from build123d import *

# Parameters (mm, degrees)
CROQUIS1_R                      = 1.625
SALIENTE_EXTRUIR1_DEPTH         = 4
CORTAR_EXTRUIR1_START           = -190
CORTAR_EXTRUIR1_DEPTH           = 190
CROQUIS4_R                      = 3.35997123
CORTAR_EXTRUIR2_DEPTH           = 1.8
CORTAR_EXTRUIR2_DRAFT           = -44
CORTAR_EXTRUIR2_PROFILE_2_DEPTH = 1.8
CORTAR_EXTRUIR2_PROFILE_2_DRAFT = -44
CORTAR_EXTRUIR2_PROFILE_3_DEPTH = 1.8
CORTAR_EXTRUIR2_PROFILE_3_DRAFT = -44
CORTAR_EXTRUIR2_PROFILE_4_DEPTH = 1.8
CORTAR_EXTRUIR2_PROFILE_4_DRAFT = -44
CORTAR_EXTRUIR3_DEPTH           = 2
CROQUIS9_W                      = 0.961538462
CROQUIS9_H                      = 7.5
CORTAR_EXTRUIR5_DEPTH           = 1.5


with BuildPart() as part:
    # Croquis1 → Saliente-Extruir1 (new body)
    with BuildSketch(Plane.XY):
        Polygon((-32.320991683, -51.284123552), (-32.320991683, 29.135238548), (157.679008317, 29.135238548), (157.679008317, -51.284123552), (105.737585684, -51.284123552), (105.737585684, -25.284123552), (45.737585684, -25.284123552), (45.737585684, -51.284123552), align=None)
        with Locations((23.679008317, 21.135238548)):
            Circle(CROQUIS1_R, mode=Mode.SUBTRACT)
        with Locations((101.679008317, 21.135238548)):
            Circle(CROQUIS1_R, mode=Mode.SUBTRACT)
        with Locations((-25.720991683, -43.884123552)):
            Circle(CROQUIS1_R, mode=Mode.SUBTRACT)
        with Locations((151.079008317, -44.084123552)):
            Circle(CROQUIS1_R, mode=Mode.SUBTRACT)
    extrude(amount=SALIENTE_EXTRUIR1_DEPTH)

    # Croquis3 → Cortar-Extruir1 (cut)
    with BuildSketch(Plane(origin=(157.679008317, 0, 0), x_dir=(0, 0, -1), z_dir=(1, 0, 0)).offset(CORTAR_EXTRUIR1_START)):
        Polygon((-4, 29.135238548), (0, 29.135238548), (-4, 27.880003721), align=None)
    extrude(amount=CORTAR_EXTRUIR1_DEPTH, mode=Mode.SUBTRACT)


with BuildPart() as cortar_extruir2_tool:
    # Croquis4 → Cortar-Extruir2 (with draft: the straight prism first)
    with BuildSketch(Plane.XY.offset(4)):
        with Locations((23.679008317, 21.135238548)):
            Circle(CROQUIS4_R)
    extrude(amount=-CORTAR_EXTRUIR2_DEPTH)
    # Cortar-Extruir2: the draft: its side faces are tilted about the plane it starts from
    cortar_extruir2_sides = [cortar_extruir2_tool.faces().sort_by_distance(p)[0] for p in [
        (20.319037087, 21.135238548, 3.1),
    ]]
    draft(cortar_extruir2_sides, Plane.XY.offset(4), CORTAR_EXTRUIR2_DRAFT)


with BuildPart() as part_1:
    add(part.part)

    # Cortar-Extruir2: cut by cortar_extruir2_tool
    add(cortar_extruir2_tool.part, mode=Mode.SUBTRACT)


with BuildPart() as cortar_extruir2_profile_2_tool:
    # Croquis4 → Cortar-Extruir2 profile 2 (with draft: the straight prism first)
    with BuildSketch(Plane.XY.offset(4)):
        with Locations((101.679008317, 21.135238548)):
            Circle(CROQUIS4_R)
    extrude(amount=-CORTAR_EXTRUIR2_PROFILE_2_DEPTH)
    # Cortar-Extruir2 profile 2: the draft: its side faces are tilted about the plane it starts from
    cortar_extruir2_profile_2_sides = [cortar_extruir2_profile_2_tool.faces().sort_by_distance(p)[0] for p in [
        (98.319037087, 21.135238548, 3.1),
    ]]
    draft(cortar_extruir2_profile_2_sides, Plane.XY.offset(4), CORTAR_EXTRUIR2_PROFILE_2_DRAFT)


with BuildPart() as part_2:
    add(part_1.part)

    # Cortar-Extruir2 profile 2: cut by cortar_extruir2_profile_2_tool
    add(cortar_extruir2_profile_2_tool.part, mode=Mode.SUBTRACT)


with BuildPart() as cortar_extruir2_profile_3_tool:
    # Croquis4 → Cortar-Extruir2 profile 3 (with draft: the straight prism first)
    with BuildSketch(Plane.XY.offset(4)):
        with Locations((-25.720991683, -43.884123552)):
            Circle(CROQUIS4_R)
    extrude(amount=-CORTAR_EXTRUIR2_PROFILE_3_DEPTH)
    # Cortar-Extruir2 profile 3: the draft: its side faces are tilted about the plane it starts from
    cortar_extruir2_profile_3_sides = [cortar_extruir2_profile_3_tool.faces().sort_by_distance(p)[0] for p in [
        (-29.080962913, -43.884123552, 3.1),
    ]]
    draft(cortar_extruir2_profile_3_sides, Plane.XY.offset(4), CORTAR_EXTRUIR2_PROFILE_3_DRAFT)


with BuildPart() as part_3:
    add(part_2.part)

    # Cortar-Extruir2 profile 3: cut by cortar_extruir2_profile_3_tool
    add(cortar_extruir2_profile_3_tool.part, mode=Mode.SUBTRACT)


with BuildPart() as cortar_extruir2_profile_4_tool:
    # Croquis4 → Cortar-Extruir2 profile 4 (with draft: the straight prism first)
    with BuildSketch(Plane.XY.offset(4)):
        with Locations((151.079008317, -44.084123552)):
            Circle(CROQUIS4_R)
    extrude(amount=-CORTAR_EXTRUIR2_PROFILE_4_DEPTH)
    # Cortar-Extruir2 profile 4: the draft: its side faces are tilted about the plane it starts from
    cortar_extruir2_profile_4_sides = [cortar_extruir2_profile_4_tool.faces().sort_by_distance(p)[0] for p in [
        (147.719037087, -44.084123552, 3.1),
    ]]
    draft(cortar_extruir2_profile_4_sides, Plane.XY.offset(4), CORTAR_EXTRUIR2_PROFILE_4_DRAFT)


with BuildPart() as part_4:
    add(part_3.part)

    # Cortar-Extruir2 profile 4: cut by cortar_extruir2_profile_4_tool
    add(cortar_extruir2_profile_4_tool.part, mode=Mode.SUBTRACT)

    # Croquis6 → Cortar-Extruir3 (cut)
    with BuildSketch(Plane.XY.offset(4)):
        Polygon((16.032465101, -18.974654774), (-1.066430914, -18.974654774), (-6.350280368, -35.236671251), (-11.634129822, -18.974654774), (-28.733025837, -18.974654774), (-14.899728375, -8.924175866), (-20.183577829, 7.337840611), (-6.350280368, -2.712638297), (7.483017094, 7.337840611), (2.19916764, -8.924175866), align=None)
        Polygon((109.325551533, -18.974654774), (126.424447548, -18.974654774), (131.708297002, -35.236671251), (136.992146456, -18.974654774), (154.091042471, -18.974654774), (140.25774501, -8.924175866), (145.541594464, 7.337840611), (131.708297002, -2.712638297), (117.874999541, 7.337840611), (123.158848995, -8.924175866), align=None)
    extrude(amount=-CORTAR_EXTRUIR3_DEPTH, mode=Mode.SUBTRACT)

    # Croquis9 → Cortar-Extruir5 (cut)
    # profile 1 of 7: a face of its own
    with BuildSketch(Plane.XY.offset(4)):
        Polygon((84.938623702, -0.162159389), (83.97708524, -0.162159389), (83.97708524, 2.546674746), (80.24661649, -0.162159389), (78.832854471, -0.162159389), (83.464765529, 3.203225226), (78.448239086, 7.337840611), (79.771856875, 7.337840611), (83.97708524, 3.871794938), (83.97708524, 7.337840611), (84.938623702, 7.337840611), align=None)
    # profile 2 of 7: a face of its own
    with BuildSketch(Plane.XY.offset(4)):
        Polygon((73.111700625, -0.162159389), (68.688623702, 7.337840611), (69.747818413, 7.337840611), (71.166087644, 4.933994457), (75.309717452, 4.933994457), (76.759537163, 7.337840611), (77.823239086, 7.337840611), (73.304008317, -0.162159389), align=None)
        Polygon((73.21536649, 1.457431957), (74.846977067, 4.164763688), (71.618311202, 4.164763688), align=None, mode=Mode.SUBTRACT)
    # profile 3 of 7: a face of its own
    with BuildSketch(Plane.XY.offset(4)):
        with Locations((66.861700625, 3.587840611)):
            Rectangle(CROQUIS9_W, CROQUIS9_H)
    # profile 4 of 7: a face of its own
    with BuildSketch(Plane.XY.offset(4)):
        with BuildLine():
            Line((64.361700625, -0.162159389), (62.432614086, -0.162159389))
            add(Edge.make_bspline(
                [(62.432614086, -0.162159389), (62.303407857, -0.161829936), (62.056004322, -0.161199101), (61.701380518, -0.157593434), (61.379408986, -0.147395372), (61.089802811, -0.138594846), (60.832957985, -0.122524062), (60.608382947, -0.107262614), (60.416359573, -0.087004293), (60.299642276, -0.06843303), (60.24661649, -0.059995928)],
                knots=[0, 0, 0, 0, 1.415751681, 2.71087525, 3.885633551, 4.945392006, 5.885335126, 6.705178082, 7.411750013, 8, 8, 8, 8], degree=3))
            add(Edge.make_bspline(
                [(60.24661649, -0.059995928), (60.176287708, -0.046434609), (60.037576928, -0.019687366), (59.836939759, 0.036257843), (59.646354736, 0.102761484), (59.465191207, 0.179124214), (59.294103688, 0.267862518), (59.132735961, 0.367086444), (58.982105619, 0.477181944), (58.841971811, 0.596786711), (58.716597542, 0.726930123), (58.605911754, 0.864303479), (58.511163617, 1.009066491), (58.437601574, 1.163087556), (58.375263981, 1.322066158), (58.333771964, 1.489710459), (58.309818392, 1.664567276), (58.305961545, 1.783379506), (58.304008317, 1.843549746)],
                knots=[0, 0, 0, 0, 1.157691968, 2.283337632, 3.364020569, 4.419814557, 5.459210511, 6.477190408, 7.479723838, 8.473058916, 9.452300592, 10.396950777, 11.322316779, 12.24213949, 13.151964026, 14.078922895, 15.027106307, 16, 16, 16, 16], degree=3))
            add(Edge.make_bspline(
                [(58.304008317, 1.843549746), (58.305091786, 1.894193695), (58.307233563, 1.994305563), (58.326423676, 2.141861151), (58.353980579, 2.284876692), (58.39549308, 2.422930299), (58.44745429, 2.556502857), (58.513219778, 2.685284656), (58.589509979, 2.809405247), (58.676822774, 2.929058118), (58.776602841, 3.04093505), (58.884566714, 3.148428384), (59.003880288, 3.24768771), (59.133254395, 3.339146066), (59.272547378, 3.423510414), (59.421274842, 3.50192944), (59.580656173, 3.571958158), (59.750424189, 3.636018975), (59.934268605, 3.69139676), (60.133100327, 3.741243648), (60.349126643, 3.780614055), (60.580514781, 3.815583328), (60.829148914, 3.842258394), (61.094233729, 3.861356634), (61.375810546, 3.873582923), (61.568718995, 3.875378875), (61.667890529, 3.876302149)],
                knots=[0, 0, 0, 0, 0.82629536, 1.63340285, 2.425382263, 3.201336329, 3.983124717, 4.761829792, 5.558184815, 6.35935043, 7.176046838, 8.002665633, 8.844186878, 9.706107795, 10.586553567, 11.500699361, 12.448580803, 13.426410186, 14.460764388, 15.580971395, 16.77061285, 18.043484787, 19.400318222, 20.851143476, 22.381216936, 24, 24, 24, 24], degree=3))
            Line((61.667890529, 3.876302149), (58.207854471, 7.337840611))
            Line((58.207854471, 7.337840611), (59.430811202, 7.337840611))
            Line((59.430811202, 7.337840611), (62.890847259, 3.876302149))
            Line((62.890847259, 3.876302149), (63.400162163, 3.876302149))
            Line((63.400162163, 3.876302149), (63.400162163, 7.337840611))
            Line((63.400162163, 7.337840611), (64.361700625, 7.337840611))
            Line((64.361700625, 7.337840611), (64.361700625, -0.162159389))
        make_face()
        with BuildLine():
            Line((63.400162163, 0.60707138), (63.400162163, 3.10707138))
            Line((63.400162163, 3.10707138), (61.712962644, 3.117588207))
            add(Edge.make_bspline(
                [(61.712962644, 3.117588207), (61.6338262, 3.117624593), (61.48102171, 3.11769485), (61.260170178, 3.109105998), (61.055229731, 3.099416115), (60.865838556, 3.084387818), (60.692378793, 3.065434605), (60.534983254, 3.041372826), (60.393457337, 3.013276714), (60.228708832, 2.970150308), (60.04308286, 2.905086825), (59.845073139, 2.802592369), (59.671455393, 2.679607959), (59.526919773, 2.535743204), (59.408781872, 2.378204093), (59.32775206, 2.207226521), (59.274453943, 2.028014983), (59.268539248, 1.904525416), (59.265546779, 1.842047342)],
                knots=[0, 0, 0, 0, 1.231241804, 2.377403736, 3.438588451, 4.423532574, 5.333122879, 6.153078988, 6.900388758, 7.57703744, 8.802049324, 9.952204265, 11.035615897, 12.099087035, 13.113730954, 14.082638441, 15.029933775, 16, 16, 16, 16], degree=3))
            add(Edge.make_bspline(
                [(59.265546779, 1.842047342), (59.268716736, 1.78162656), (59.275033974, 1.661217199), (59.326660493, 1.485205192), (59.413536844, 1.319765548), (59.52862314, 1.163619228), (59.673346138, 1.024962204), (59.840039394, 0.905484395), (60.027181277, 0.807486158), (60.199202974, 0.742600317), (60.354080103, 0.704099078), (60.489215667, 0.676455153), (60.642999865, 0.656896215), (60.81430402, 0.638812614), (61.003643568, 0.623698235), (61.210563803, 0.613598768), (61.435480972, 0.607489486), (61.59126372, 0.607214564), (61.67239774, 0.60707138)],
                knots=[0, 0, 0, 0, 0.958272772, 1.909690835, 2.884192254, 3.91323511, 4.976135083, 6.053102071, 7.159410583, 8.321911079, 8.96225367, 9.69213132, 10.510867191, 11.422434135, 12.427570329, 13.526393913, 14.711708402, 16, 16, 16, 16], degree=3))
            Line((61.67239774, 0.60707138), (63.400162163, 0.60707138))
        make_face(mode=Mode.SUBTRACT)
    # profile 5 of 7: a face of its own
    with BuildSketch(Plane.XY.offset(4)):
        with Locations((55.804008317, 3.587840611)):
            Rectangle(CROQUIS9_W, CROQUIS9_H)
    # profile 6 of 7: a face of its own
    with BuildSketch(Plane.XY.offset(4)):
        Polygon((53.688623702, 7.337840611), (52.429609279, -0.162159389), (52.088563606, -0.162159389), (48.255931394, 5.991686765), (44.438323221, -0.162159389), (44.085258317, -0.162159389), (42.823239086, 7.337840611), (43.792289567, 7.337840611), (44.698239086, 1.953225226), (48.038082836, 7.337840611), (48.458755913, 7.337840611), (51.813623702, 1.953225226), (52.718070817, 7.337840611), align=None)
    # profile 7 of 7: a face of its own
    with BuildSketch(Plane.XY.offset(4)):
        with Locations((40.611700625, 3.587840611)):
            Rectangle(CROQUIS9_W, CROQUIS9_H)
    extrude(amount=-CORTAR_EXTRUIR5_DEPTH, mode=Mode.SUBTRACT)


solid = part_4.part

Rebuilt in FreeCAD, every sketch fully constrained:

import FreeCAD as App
import Part
import Sketcher

V = App.Vector
Q = App.Units.Quantity


def faces_at(feature, points):
    """Names of the faces that lie closest to the given points."""
    faces = feature.Shape.Faces
    near = lambda p: min(range(len(faces)), key=lambda i: faces[i].distToShape(Part.Vertex(*p))[0])
    return sorted({f"Face{near(p) + 1}" for p in points})


def add_polygon(sketch, points):
    """Adds a closed chain of lines whose ends are joined by coincident constraints."""
    first, n = sketch.GeometryCount, len(points)
    for a, b in zip(points, points[1:] + points[:1]):
        sketch.addGeometry(Part.LineSegment(App.Vector(*a, 0), App.Vector(*b, 0)), False)
    for i in range(n):
        sketch.addConstraint(Sketcher.Constraint("Coincident", first + i, 2, first + (i + 1) % n, 1))

doc = App.newDocument("Part")
body = doc.addObject("PartDesign::Body", "Body")

# Sketch on XY plane
sketch1 = body.newObject("Sketcher::SketchObject", "Sketch")
sketch1.AttachmentSupport = (doc.getObject("XY_Plane"), [""])
sketch1.MapMode = "FlatFace"
add_polygon(sketch1, [(-32.320992, 29.135239), (-32.320992, -51.284124), (45.737586, -51.284124), (45.737586, -25.284124), (105.737586, -25.284124), (105.737586, -51.284124), (157.679008, -51.284124), (157.679008, 29.135239)])  # lines 0-7
sketch1.addGeometry(Part.Circle(V(151.079008, -44.084124, 0), V(0, 0, 1), 1.625), False)  # 8
sketch1.addGeometry(Part.Circle(V(-25.720992, -43.884124, 0), V(0, 0, 1), 1.625), False)  # 9
sketch1.addGeometry(Part.Circle(V(101.679008, 21.135239, 0), V(0, 0, 1), 1.625), False)  # 10
sketch1.addGeometry(Part.Circle(V(23.679008, 21.135239, 0), V(0, 0, 1), 1.625), False)  # 11
sketch1.addConstraint(Sketcher.Constraint("Vertical", 0))
sketch1.addConstraint(Sketcher.Constraint("Horizontal", 1))
sketch1.addConstraint(Sketcher.Constraint("Vertical", 2))
sketch1.addConstraint(Sketcher.Constraint("Horizontal", 3))
sketch1.addConstraint(Sketcher.Constraint("Vertical", 4))
sketch1.addConstraint(Sketcher.Constraint("Horizontal", 5))
sketch1.addConstraint(Sketcher.Constraint("Vertical", 6))
sketch1.addConstraint(Sketcher.Constraint("Horizontal", 7))
sketch1.addConstraint(Sketcher.Constraint("Equal", 8, 9))
sketch1.addConstraint(Sketcher.Constraint("Equal", 9, 10))
sketch1.addConstraint(Sketcher.Constraint("Equal", 10, 11))
sketch1.addConstraint(Sketcher.Constraint("Horizontal", 10, 3, 11, 3))
sketch1.addConstraint(Sketcher.Constraint("Horizontal", 1, 2, 4, 2))
sketch1.addConstraint(Sketcher.Constraint("Diameter", 8, 3.25))
sketch1.addConstraint(Sketcher.Constraint("DistanceX", 3, 1, 3, 2, 60.0))
sketch1.addConstraint(Sketcher.Constraint("DistanceX", 7, 2, 7, 1, 190.0))
sketch1.addConstraint(Sketcher.Constraint("DistanceY", 2, 1, 2, 2, 26.0))
sketch1.addConstraint(Sketcher.Constraint("DistanceX", 11, 3, 10, 3, 78.0))
sketch1.addConstraint(Sketcher.Constraint("DistanceX", 0, 2, 11, 3, 56.0))
sketch1.addConstraint(Sketcher.Constraint("DistanceY", 10, 3, 6, 2, 8.0))
sketch1.addConstraint(Sketcher.Constraint("DistanceX", 9, 3, 8, 3, 176.8))
sketch1.addConstraint(Sketcher.Constraint("DistanceY", 8, 3, 9, 3, 0.2))
sketch1.addConstraint(Sketcher.Constraint("DistanceX", 10, 3, 8, 3, 49.4))
sketch1.addConstraint(Sketcher.Constraint("DistanceY", 0, 2, 9, 3, 7.4))
sketch1.addConstraint(Sketcher.Constraint("DistanceX", 1, 1, 1, 2, 78.058577))
sketch1.addConstraint(Sketcher.Constraint("DistanceY", 0, 2, 0, 1, 80.419362))
sketch1.addConstraint(Sketcher.Constraint("DistanceX", -1, 1, 8, 3, 151.079008))
sketch1.addConstraint(Sketcher.Constraint("DistanceY", -1, 1, 10, 3, 21.135239))
pad1 = body.newObject("PartDesign::Pad", "Pad")
pad1.Profile = sketch1
pad1.Length = 4

# Sketch on YZ plane
sketch2 = body.newObject("Sketcher::SketchObject", "Sketch001")
sketch2.AttachmentSupport = (doc.getObject("YZ_Plane"), [""])
sketch2.MapMode = "FlatFace"
sketch2.AttachmentOffset = App.Placement(V(0, 0, -32.320992), App.Rotation())
add_polygon(sketch2, [(29.135239, 0), (29.135239, 4), (27.880004, 4)])  # lines 0-2
sketch2.addConstraint(Sketcher.Constraint("Vertical", 0))
sketch2.addConstraint(Sketcher.Constraint("Horizontal", 1))
sketch2.addConstraint(Sketcher.Constraint("PointOnObject", 2, 2, -1))
sketch2.addConstraint(Sketcher.Constraint("DistanceY", 0, 1, 0, 2, 4.0))
sketch2.addConstraint(Sketcher.Constraint("Distance", 2, 4.192328))
sketch2.addConstraint(Sketcher.Constraint("DistanceX", -1, 1, 0, 2, 29.135239))
pocket1 = body.newObject("PartDesign::Pocket", "Pocket")
pocket1.Profile = sketch2
pocket1.Length = 190
pocket1.Reversed = True
body2 = doc.addObject("PartDesign::Body", "Body001")

# Sketch on XY plane
sketch3 = body2.newObject("Sketcher::SketchObject", "Sketch002")
sketch3.AttachmentSupport = (doc.getObject("XY_Plane001"), [""])
sketch3.MapMode = "FlatFace"
sketch3.AttachmentOffset = App.Placement(V(0, 0, 4), App.Rotation())
sketch3.addGeometry(Part.Circle(V(23.679008, 21.135239, 0), V(0, 0, 1), 3.359971), False)
sketch3.addConstraint(Sketcher.Constraint("Diameter", 0, 6.719942))
sketch3.addConstraint(Sketcher.Constraint("DistanceX", -1, 1, 0, 3, 23.679008))
sketch3.addConstraint(Sketcher.Constraint("DistanceY", -1, 1, 0, 3, 21.135239))
pad2 = body2.newObject("PartDesign::Pad", "Pad001")
pad2.Profile = sketch3
pad2.Length = 1.8
pad2.Reversed = True
doc.recompute()

datumplane = body2.newObject("PartDesign::Plane", "DatumPlane")
datumplane.AttachmentSupport = (doc.getObject("XY_Plane001"), [""])
datumplane.MapMode = "FlatFace"
datumplane.AttachmentOffset = App.Placement(V(0, 0, 4), App.Rotation())
draft = body2.newObject("PartDesign::Draft", "Draft")
draft.Base = (pad2, faces_at(pad2, [(20.319, 21.135, 3.1)]))
draft.NeutralPlane = (datumplane, [""])
draft.Angle = 44
draft.Reversed = True
doc.recompute()

boolean = body.newObject("PartDesign::Boolean", "Boolean")
boolean.Type = "Cut"
boolean.addObjects([body2])
body3 = doc.addObject("PartDesign::Body", "Body002")

# Sketch on XY plane
sketch4 = body3.newObject("Sketcher::SketchObject", "Sketch003")
sketch4.AttachmentSupport = (doc.getObject("XY_Plane002"), [""])
sketch4.MapMode = "FlatFace"
sketch4.AttachmentOffset = App.Placement(V(0, 0, 4), App.Rotation())
sketch4.addGeometry(Part.Circle(V(101.679008, 21.135239, 0), V(0, 0, 1), 3.359971), False)
sketch4.addConstraint(Sketcher.Constraint("Diameter", 0, 6.719942))
sketch4.addConstraint(Sketcher.Constraint("DistanceX", -1, 1, 0, 3, 101.679008))
sketch4.addConstraint(Sketcher.Constraint("DistanceY", -1, 1, 0, 3, 21.135239))
pad3 = body3.newObject("PartDesign::Pad", "Pad002")
pad3.Profile = sketch4
pad3.Length = 1.8
pad3.Reversed = True
doc.recompute()

datumplane2 = body3.newObject("PartDesign::Plane", "DatumPlane001")
datumplane2.AttachmentSupport = (doc.getObject("XY_Plane002"), [""])
datumplane2.MapMode = "FlatFace"
datumplane2.AttachmentOffset = App.Placement(V(0, 0, 4), App.Rotation())
draft2 = body3.newObject("PartDesign::Draft", "Draft001")
draft2.Base = (pad3, faces_at(pad3, [(98.319, 21.135, 3.1)]))
draft2.NeutralPlane = (datumplane2, [""])
draft2.Angle = 44
draft2.Reversed = True
doc.recompute()

boolean2 = body.newObject("PartDesign::Boolean", "Boolean001")
boolean2.Type = "Cut"
boolean2.addObjects([body3])
body4 = doc.addObject("PartDesign::Body", "Body003")

# Sketch on XY plane
sketch5 = body4.newObject("Sketcher::SketchObject", "Sketch004")
sketch5.AttachmentSupport = (doc.getObject("XY_Plane003"), [""])
sketch5.MapMode = "FlatFace"
sketch5.AttachmentOffset = App.Placement(V(0, 0, 4), App.Rotation())
sketch5.addGeometry(Part.Circle(V(-25.720992, -43.884124, 0), V(0, 0, 1), 3.359971), False)
sketch5.addConstraint(Sketcher.Constraint("Diameter", 0, 6.719942))
sketch5.addConstraint(Sketcher.Constraint("DistanceX", 0, 3, -1, 1, 25.720992))
sketch5.addConstraint(Sketcher.Constraint("DistanceY", 0, 3, -1, 1, 43.884124))
pad4 = body4.newObject("PartDesign::Pad", "Pad003")
pad4.Profile = sketch5
pad4.Length = 1.8
pad4.Reversed = True
doc.recompute()

datumplane3 = body4.newObject("PartDesign::Plane", "DatumPlane002")
datumplane3.AttachmentSupport = (doc.getObject("XY_Plane003"), [""])
datumplane3.MapMode = "FlatFace"
datumplane3.AttachmentOffset = App.Placement(V(0, 0, 4), App.Rotation())
draft3 = body4.newObject("PartDesign::Draft", "Draft002")
draft3.Base = (pad4, faces_at(pad4, [(-29.081, -43.884, 3.1)]))
draft3.NeutralPlane = (datumplane3, [""])
draft3.Angle = 44
draft3.Reversed = True
doc.recompute()

boolean3 = body.newObject("PartDesign::Boolean", "Boolean002")
boolean3.Type = "Cut"
boolean3.addObjects([body4])
body5 = doc.addObject("PartDesign::Body", "Body004")

# Sketch on XY plane
sketch6 = body5.newObject("Sketcher::SketchObject", "Sketch005")
sketch6.AttachmentSupport = (doc.getObject("XY_Plane004"), [""])
sketch6.MapMode = "FlatFace"
sketch6.AttachmentOffset = App.Placement(V(0, 0, 4), App.Rotation())
sketch6.addGeometry(Part.Circle(V(151.079008, -44.084124, 0), V(0, 0, 1), 3.359971), False)
sketch6.addConstraint(Sketcher.Constraint("Diameter", 0, 6.719942))
sketch6.addConstraint(Sketcher.Constraint("DistanceX", -1, 1, 0, 3, 151.079008))
sketch6.addConstraint(Sketcher.Constraint("DistanceY", 0, 3, -1, 1, 44.084124))
pad5 = body5.newObject("PartDesign::Pad", "Pad004")
pad5.Profile = sketch6
pad5.Length = 1.8
pad5.Reversed = True
doc.recompute()

datumplane4 = body5.newObject("PartDesign::Plane", "DatumPlane003")
datumplane4.AttachmentSupport = (doc.getObject("XY_Plane004"), [""])
datumplane4.MapMode = "FlatFace"
datumplane4.AttachmentOffset = App.Placement(V(0, 0, 4), App.Rotation())
draft4 = body5.newObject("PartDesign::Draft", "Draft003")
draft4.Base = (pad5, faces_at(pad5, [(147.719, -44.084, 3.1)]))
draft4.NeutralPlane = (datumplane4, [""])
draft4.Angle = 44
draft4.Reversed = True
doc.recompute()

boolean4 = body.newObject("PartDesign::Boolean", "Boolean003")
boolean4.Type = "Cut"
boolean4.addObjects([body5])

# Sketch on XY plane
sketch7 = body.newObject("Sketcher::SketchObject", "Sketch006")
sketch7.AttachmentSupport = (doc.getObject("XY_Plane"), [""])
sketch7.MapMode = "FlatFace"
sketch7.AttachmentOffset = App.Placement(V(0, 0, 4), App.Rotation())
add_polygon(sketch7, [(-1.066431, -18.974655), (16.032465, -18.974655), (2.199168, -8.924176), (7.483017, 7.337841), (-6.35028, -2.712638), (-20.183578, 7.337841), (-14.899728, -8.924176), (-28.733026, -18.974655), (-11.63413, -18.974655), (-6.35028, -35.236671)])  # lines 0-9
add_polygon(sketch7, [(109.325552, -18.974655), (126.424448, -18.974655), (131.708297, -35.236671), (136.992146, -18.974655), (154.091042, -18.974655), (140.257745, -8.924176), (145.541594, 7.337841), (131.708297, -2.712638), (117.875, 7.337841), (123.158849, -8.924176)])  # lines 10-19
sketch7.addConstraint(Sketcher.Constraint("Horizontal", 0))
sketch7.addConstraint(Sketcher.Constraint("Horizontal", 7))
sketch7.addConstraint(Sketcher.Constraint("Horizontal", 10))
sketch7.addConstraint(Sketcher.Constraint("Horizontal", 13))
sketch7.addConstraint(Sketcher.Constraint("Parallel", 1, 4))
sketch7.addConstraint(Sketcher.Constraint("Parallel", 3, 6))
sketch7.addConstraint(Sketcher.Constraint("Parallel", 5, 8))
sketch7.addConstraint(Sketcher.Constraint("Parallel", 2, 9))
sketch7.addConstraint(Sketcher.Constraint("Parallel", 8, 11))
sketch7.addConstraint(Sketcher.Constraint("Parallel", 9, 12))
sketch7.addConstraint(Sketcher.Constraint("Parallel", 4, 14))
sketch7.addConstraint(Sketcher.Constraint("Parallel", 12, 15))
sketch7.addConstraint(Sketcher.Constraint("Parallel", 6, 16))
sketch7.addConstraint(Sketcher.Constraint("Parallel", 14, 17))
sketch7.addConstraint(Sketcher.Constraint("Parallel", 11, 18))
sketch7.addConstraint(Sketcher.Constraint("Parallel", 16, 19))
sketch7.addConstraint(Sketcher.Constraint("Horizontal", 2, 2, 4, 2))
sketch7.addConstraint(Sketcher.Constraint("Horizontal", 1, 2, 5, 2))
sketch7.addConstraint(Sketcher.Constraint("Horizontal", 0, 2, 6, 2))
sketch7.addConstraint(Sketcher.Constraint("Horizontal", 9, 2, 10, 2))
sketch7.addConstraint(Sketcher.Constraint("Horizontal", 8, 2, 11, 2))
sketch7.addConstraint(Sketcher.Constraint("Horizontal", 10, 2, 12, 2))
sketch7.addConstraint(Sketcher.Constraint("Horizontal", 5, 2, 14, 2))
sketch7.addConstraint(Sketcher.Constraint("Horizontal", 4, 2, 15, 2))
sketch7.addConstraint(Sketcher.Constraint("Horizontal", 3, 2, 16, 2))
sketch7.addConstraint(Sketcher.Constraint("Horizontal", 15, 2, 17, 2))
sketch7.addConstraint(Sketcher.Constraint("Horizontal", 14, 2, 18, 2))
sketch7.addConstraint(Sketcher.Constraint("Vertical", 3, 2, 8, 2))
sketch7.addConstraint(Sketcher.Constraint("Vertical", 11, 2, 16, 2))
sketch7.addConstraint(Sketcher.Constraint("Equal", 0, 7))
sketch7.addConstraint(Sketcher.Constraint("Equal", 1, 2))
sketch7.addConstraint(Sketcher.Constraint("Equal", 2, 3))
sketch7.addConstraint(Sketcher.Constraint("Equal", 3, 4))
sketch7.addConstraint(Sketcher.Constraint("Equal", 6, 8))
sketch7.addConstraint(Sketcher.Constraint("Angle", 1, Q("144 deg")))
sketch7.addConstraint(Sketcher.Constraint("Angle", 2, Q("72 deg")))
sketch7.addConstraint(Sketcher.Constraint("DistanceX", -1, 1, 17, 2, 117.875))
sketch7.addConstraint(Sketcher.Constraint("DistanceX", 5, 2, 7, 2, 3.265599))
sketch7.addConstraint(Sketcher.Constraint("DistanceY", -1, 1, 2, 2, 7.337841))
sketch7.addConstraint(Sketcher.Constraint("DistanceX", 3, 2, -1, 1, 6.35028))
pocket2 = body.newObject("PartDesign::Pocket", "Pocket001")
pocket2.Profile = sketch7
pocket2.Length = 2

# Sketch on XY plane
sketch8 = body.newObject("Sketcher::SketchObject", "Sketch007")
sketch8.AttachmentSupport = (doc.getObject("XY_Plane"), [""])
sketch8.MapMode = "FlatFace"
sketch8.AttachmentOffset = App.Placement(V(0, 0, 4), App.Rotation())
add_polygon(sketch8, [(83.977085, -0.162159), (84.938624, -0.162159), (84.938624, 7.337841), (83.977085, 7.337841), (83.977085, 3.871795), (79.771857, 7.337841), (78.448239, 7.337841), (83.464766, 3.203225), (78.832854, -0.162159), (80.246616, -0.162159), (83.977085, 2.546675)])  # lines 0-10
add_polygon(sketch8, [(68.688624, 7.337841), (73.111701, -0.162159), (73.304008, -0.162159), (77.823239, 7.337841), (76.759537, 7.337841), (75.309717, 4.933994), (71.166088, 4.933994), (69.747818, 7.337841)])  # lines 11-18
add_polygon(sketch8, [(73.215366, 1.457432), (71.618311, 4.164764), (74.846977, 4.164764)])  # lines 19-21
add_polygon(sketch8, [(66.380931, 7.337841), (66.380931, -0.162159), (67.34247, -0.162159), (67.34247, 7.337841)])  # lines 22-25
sketch8.addGeometry(Part.LineSegment(V(62.432614, -0.162159, 0), V(64.361701, -0.162159, 0)), False)  # 26
sketch8.addGeometry(Part.LineSegment(V(64.361701, -0.162159, 0), V(64.361701, 7.337841, 0)), False)  # 27
sketch8.addGeometry(Part.LineSegment(V(64.361701, 7.337841, 0), V(63.400162, 7.337841, 0)), False)  # 28
sketch8.addGeometry(Part.LineSegment(V(63.400162, 7.337841, 0), V(63.400162, 3.876302, 0)), False)  # 29
sketch8.addGeometry(Part.LineSegment(V(63.400162, 3.876302, 0), V(62.890847, 3.876302, 0)), False)  # 30
sketch8.addGeometry(Part.LineSegment(V(62.890847, 3.876302, 0), V(59.430811, 7.337841, 0)), False)  # 31
sketch8.addGeometry(Part.LineSegment(V(59.430811, 7.337841, 0), V(58.207854, 7.337841, 0)), False)  # 32
sketch8.addGeometry(Part.LineSegment(V(58.207854, 7.337841, 0), V(61.667891, 3.876302, 0)), False)  # 33
sketch8.addGeometry(Part.BSplineCurve([V(58.304008, 1.84355, 0), V(58.305092, 1.894194, 0), V(58.307234, 1.994306, 0), V(58.326424, 2.141861, 0), V(58.353981, 2.284877, 0), V(58.395493, 2.42293, 0), V(58.447454, 2.556503, 0), V(58.51322, 2.685285, 0), V(58.58951, 2.809405, 0), V(58.676823, 2.929058, 0), V(58.776603, 3.040935, 0), V(58.884567, 3.148428, 0), V(59.00388, 3.247688, 0), V(59.133254, 3.339146, 0), V(59.272547, 3.42351, 0), V(59.421275, 3.501929, 0), V(59.580656, 3.571958, 0), V(59.750424, 3.636019, 0), V(59.934269, 3.691397, 0), V(60.1331, 3.741244, 0), V(60.349127, 3.780614, 0), V(60.580515, 3.815583, 0), V(60.829149, 3.842258, 0), V(61.094234, 3.861357, 0), V(61.375811, 3.873583, 0), V(61.568719, 3.875379, 0), V(61.667891, 3.876302, 0)], [4, 1, 1, 1, 1, 1, 1, 1, 1, 1, 1, 1, 1, 1, 1, 1, 1, 1, 1, 1, 1, 1, 1, 1, 4], [0, 0.82629536, 1.63340285, 2.425382263, 3.201336329, 3.983124717, 4.761829792, 5.558184815, 6.35935043, 7.176046838, 8.002665633, 8.844186878, 9.706107795, 10.586553567, 11.500699361, 12.448580803, 13.426410186, 14.460764388, 15.580971395, 16.77061285, 18.043484787, 19.400318222, 20.851143476, 22.381216936, 24], False, 3, [1, 1, 1, 1, 1, 1, 1, 1, 1, 1, 1, 1, 1, 1, 1, 1, 1, 1, 1, 1, 1, 1, 1, 1, 1, 1, 1], False), False)  # 34
sketch8.addGeometry(Part.BSplineCurve([V(60.246616, -0.059996, 0), V(60.176288, -0.046435, 0), V(60.037577, -0.019687, 0), V(59.83694, 0.036258, 0), V(59.646355, 0.102761, 0), V(59.465191, 0.179124, 0), V(59.294104, 0.267863, 0), V(59.132736, 0.367086, 0), V(58.982106, 0.477182, 0), V(58.841972, 0.596787, 0), V(58.716598, 0.72693, 0), V(58.605912, 0.864303, 0), V(58.511164, 1.009066, 0), V(58.437602, 1.163088, 0), V(58.375264, 1.322066, 0), V(58.333772, 1.48971, 0), V(58.309818, 1.664567, 0), V(58.305962, 1.78338, 0), V(58.304008, 1.84355, 0)], [4, 1, 1, 1, 1, 1, 1, 1, 1, 1, 1, 1, 1, 1, 1, 1, 4], [0, 1.157691968, 2.283337632, 3.364020569, 4.419814557, 5.459210511, 6.477190408, 7.479723838, 8.473058916, 9.452300592, 10.396950777, 11.322316779, 12.24213949, 13.151964026, 14.078922895, 15.027106307, 16], False, 3, [1, 1, 1, 1, 1, 1, 1, 1, 1, 1, 1, 1, 1, 1, 1, 1, 1, 1, 1], False), False)  # 35
sketch8.addGeometry(Part.BSplineCurve([V(62.432614, -0.162159, 0), V(62.303408, -0.16183, 0), V(62.056004, -0.161199, 0), V(61.701381, -0.157593, 0), V(61.379409, -0.147395, 0), V(61.089803, -0.138595, 0), V(60.832958, -0.122524, 0), V(60.608383, -0.107263, 0), V(60.41636, -0.087004, 0), V(60.299642, -0.068433, 0), V(60.246616, -0.059996, 0)], [4, 1, 1, 1, 1, 1, 1, 1, 4], [0, 1.415751681, 2.71087525, 3.885633551, 4.945392006, 5.885335126, 6.705178082, 7.411750013, 8], False, 3, [1, 1, 1, 1, 1, 1, 1, 1, 1, 1, 1], False), False)  # 36
sketch8.addGeometry(Part.LineSegment(V(63.400162, 0.607071, 0), V(61.672398, 0.607071, 0)), False)  # 37
sketch8.addGeometry(Part.BSplineCurve([V(59.265547, 1.842047, 0), V(59.268717, 1.781627, 0), V(59.275034, 1.661217, 0), V(59.32666, 1.485205, 0), V(59.413537, 1.319766, 0), V(59.528623, 1.163619, 0), V(59.673346, 1.024962, 0), V(59.840039, 0.905484, 0), V(60.027181, 0.807486, 0), V(60.199203, 0.7426, 0), V(60.35408, 0.704099, 0), V(60.489216, 0.676455, 0), V(60.643, 0.656896, 0), V(60.814304, 0.638813, 0), V(61.003644, 0.623698, 0), V(61.210564, 0.613599, 0), V(61.435481, 0.607489, 0), V(61.591264, 0.607215, 0), V(61.672398, 0.607071, 0)], [4, 1, 1, 1, 1, 1, 1, 1, 1, 1, 1, 1, 1, 1, 1, 1, 4], [0, 0.958272772, 1.909690835, 2.884192254, 3.91323511, 4.976135083, 6.053102071, 7.159410583, 8.321911079, 8.96225367, 9.69213132, 10.510867191, 11.422434135, 12.427570329, 13.526393913, 14.711708402, 16], False, 3, [1, 1, 1, 1, 1, 1, 1, 1, 1, 1, 1, 1, 1, 1, 1, 1, 1, 1, 1], False), False)  # 38
sketch8.addGeometry(Part.BSplineCurve([V(61.712963, 3.117588, 0), V(61.633826, 3.117625, 0), V(61.481022, 3.117695, 0), V(61.26017, 3.109106, 0), V(61.05523, 3.099416, 0), V(60.865839, 3.084388, 0), V(60.692379, 3.065435, 0), V(60.534983, 3.041373, 0), V(60.393457, 3.013277, 0), V(60.228709, 2.97015, 0), V(60.043083, 2.905087, 0), V(59.845073, 2.802592, 0), V(59.671455, 2.679608, 0), V(59.52692, 2.535743, 0), V(59.408782, 2.378204, 0), V(59.327752, 2.207227, 0), V(59.274454, 2.028015, 0), V(59.268539, 1.904525, 0), V(59.265547, 1.842047, 0)], [4, 1, 1, 1, 1, 1, 1, 1, 1, 1, 1, 1, 1, 1, 1, 1, 4], [0, 1.231241804, 2.377403736, 3.438588451, 4.423532574, 5.333122879, 6.153078988, 6.900388758, 7.57703744, 8.802049324, 9.952204265, 11.035615897, 12.099087035, 13.113730954, 14.082638441, 15.029933775, 16], False, 3, [1, 1, 1, 1, 1, 1, 1, 1, 1, 1, 1, 1, 1, 1, 1, 1, 1, 1, 1], False), False)  # 39
sketch8.addGeometry(Part.LineSegment(V(61.712963, 3.117588, 0), V(63.400162, 3.107071, 0)), False)  # 40
sketch8.addGeometry(Part.LineSegment(V(63.400162, 3.107071, 0), V(63.400162, 0.607071, 0)), False)  # 41
add_polygon(sketch8, [(55.323239, 7.337841), (55.323239, -0.162159), (56.284778, -0.162159), (56.284778, 7.337841)])  # lines 42-45
add_polygon(sketch8, [(52.429609, -0.162159), (53.688624, 7.337841), (52.718071, 7.337841), (51.813624, 1.953225), (48.458756, 7.337841), (48.038083, 7.337841), (44.698239, 1.953225), (43.79229, 7.337841), (42.823239, 7.337841), (44.085258, -0.162159), (44.438323, -0.162159), (48.255931, 5.991687), (52.088564, -0.162159)])  # lines 46-58
add_polygon(sketch8, [(40.130931, 7.337841), (40.130931, -0.162159), (41.09247, -0.162159), (41.09247, 7.337841)])  # lines 59-62
sketch8.addConstraint(Sketcher.Constraint("Block", 34))
sketch8.addConstraint(Sketcher.Constraint("Block", 35))
sketch8.addConstraint(Sketcher.Constraint("Block", 36))
sketch8.addConstraint(Sketcher.Constraint("Block", 38))
sketch8.addConstraint(Sketcher.Constraint("Block", 39))
sketch8.addConstraint(Sketcher.Constraint("Coincident", 26, 2, 27, 1))
sketch8.addConstraint(Sketcher.Constraint("Coincident", 27, 2, 28, 1))
sketch8.addConstraint(Sketcher.Constraint("Coincident", 28, 2, 29, 1))
sketch8.addConstraint(Sketcher.Constraint("Coincident", 29, 2, 30, 1))
sketch8.addConstraint(Sketcher.Constraint("Coincident", 30, 2, 31, 1))
sketch8.addConstraint(Sketcher.Constraint("Coincident", 31, 2, 32, 1))
sketch8.addConstraint(Sketcher.Constraint("Coincident", 32, 2, 33, 1))
sketch8.addConstraint(Sketcher.Constraint("Coincident", 33, 2, 34, 2))
sketch8.addConstraint(Sketcher.Constraint("Coincident", 36, 1, 26, 1))
sketch8.addConstraint(Sketcher.Constraint("Coincident", 37, 2, 38, 2))
sketch8.addConstraint(Sketcher.Constraint("Coincident", 39, 1, 40, 1))
sketch8.addConstraint(Sketcher.Constraint("Coincident", 40, 2, 41, 1))
sketch8.addConstraint(Sketcher.Constraint("Coincident", 41, 2, 37, 1))
sketch8.addConstraint(Sketcher.Constraint("Horizontal", 0))
sketch8.addConstraint(Sketcher.Constraint("Vertical", 1))
sketch8.addConstraint(Sketcher.Constraint("Horizontal", 2))
sketch8.addConstraint(Sketcher.Constraint("Vertical", 3))
sketch8.addConstraint(Sketcher.Constraint("Horizontal", 5))
sketch8.addConstraint(Sketcher.Constraint("Horizontal", 8))
sketch8.addConstraint(Sketcher.Constraint("Vertical", 10))
sketch8.addConstraint(Sketcher.Constraint("Horizontal", 12))
sketch8.addConstraint(Sketcher.Constraint("Horizontal", 14))
sketch8.addConstraint(Sketcher.Constraint("Horizontal", 16))
sketch8.addConstraint(Sketcher.Constraint("Horizontal", 18))
sketch8.addConstraint(Sketcher.Constraint("Horizontal", 20))
sketch8.addConstraint(Sketcher.Constraint("Vertical", 22))
sketch8.addConstraint(Sketcher.Constraint("Horizontal", 23))
sketch8.addConstraint(Sketcher.Constraint("Vertical", 24))
sketch8.addConstraint(Sketcher.Constraint("Horizontal", 25))
sketch8.addConstraint(Sketcher.Constraint("Horizontal", 26))
sketch8.addConstraint(Sketcher.Constraint("Vertical", 27))
sketch8.addConstraint(Sketcher.Constraint("Horizontal", 28))
sketch8.addConstraint(Sketcher.Constraint("Vertical", 29))
sketch8.addConstraint(Sketcher.Constraint("Horizontal", 30))
sketch8.addConstraint(Sketcher.Constraint("Horizontal", 32))
sketch8.addConstraint(Sketcher.Constraint("Horizontal", 37))
sketch8.addConstraint(Sketcher.Constraint("Vertical", 41))
sketch8.addConstraint(Sketcher.Constraint("Vertical", 42))
sketch8.addConstraint(Sketcher.Constraint("Horizontal", 43))
sketch8.addConstraint(Sketcher.Constraint("Vertical", 44))
sketch8.addConstraint(Sketcher.Constraint("Horizontal", 45))
sketch8.addConstraint(Sketcher.Constraint("Horizontal", 47))
sketch8.addConstraint(Sketcher.Constraint("Horizontal", 50))
sketch8.addConstraint(Sketcher.Constraint("Horizontal", 53))
sketch8.addConstraint(Sketcher.Constraint("Horizontal", 55))
sketch8.addConstraint(Sketcher.Constraint("Horizontal", 58))
sketch8.addConstraint(Sketcher.Constraint("Vertical", 59))
sketch8.addConstraint(Sketcher.Constraint("Horizontal", 60))
sketch8.addConstraint(Sketcher.Constraint("Vertical", 61))
sketch8.addConstraint(Sketcher.Constraint("Horizontal", 62))
sketch8.addConstraint(Sketcher.Constraint("DistanceY", 1, 1, 1, 2, 7.5))
sketch8.addConstraint(Sketcher.Constraint("DistanceY", 22, 2, 22, 1, 7.5))
sketch8.addConstraint(Sketcher.Constraint("DistanceY", 27, 1, 27, 2, 7.5))
sketch8.addConstraint(Sketcher.Constraint("DistanceY", 41, 2, 41, 1, 2.5))
sketch8.addConstraint(Sketcher.Constraint("DistanceY", 42, 2, 42, 1, 7.5))
sketch8.addConstraint(Sketcher.Constraint("DistanceY", 59, 2, 59, 1, 7.5))
sketch8.addConstraint(Sketcher.Constraint("DistanceY", 0, 2, 4, 2, 7.5))
sketch8.addConstraint(Sketcher.Constraint("DistanceY", 7, 2, 5, 2, 7.5))
sketch8.addConstraint(Sketcher.Constraint("DistanceY", 11, 2, 5, 2, 7.5))
sketch8.addConstraint(Sketcher.Constraint("DistanceY", 7, 2, 14, 2, 7.5))
sketch8.addConstraint(Sketcher.Constraint("DistanceY", 11, 2, 17, 2, 7.5))
sketch8.addConstraint(Sketcher.Constraint("DistanceY", 26, 2, 25, 2, 7.5))
sketch8.addConstraint(Sketcher.Constraint("DistanceY", 42, 2, 32, 2, 7.5))
sketch8.addConstraint(Sketcher.Constraint("DistanceY", 42, 2, 46, 2, 7.5))
sketch8.addConstraint(Sketcher.Constraint("DistanceY", 54, 2, 52, 2, 7.5))
sketch8.addConstraint(Sketcher.Constraint("DistanceY", 54, 2, 50, 2, 7.5))
sketch8.addConstraint(Sketcher.Constraint("DistanceY", 57, 2, 47, 2, 7.5))
sketch8.addConstraint(Sketcher.Constraint("DistanceY", 59, 2, 53, 2, 7.5))
sketch8.addConstraint(Sketcher.Constraint("DistanceX", 14, 2, 14, 1, 1.063702))
sketch8.addConstraint(Sketcher.Constraint("DistanceX", 13, 2, 5, 2, 0.625))
sketch8.addConstraint(Sketcher.Constraint("DistanceX", 48, 2, 46, 2, 1.875))
sketch8.addConstraint(Sketcher.Constraint("DistanceX", 53, 2, 51, 2, 1.875))
sketch8.addConstraint(Sketcher.Constraint("Distance", 11, 8.707101))
sketch8.addConstraint(Sketcher.Constraint("DistanceX", 0, 1, 0, 2, 0.961538))
sketch8.addConstraint(Sketcher.Constraint("DistanceX", 2, 2, 2, 1, 0.961538))
sketch8.addConstraint(Sketcher.Constraint("DistanceX", 16, 2, 16, 1, 4.14363))
sketch8.addConstraint(Sketcher.Constraint("DistanceX", 23, 1, 23, 2, 0.961538))
sketch8.addConstraint(Sketcher.Constraint("DistanceX", 28, 2, 28, 1, 0.961538))
sketch8.addConstraint(Sketcher.Constraint("DistanceX", 43, 1, 43, 2, 0.961538))
sketch8.addConstraint(Sketcher.Constraint("DistanceX", 53, 2, 53, 1, 0.96905))
sketch8.addConstraint(Sketcher.Constraint("DistanceX", 60, 1, 60, 2, 0.961538))
sketch8.addConstraint(Sketcher.Constraint("DistanceY", 29, 2, 29, 1, 3.461538))
sketch8.addConstraint(Sketcher.Constraint("DistanceX", -1, 1, 11, 2, 73.111701))
sketch8.addConstraint(Sketcher.Constraint("DistanceX", -1, 1, 26, 2, 64.361701))
sketch8.addConstraint(Sketcher.Constraint("DistanceX", 17, 2, 15, 2, 5.561899))
sketch8.addConstraint(Sketcher.Constraint("DistanceX", 55, 2, 48, 2, 7.3753))
sketch8.addConstraint(Sketcher.Constraint("Distance", 7, 5.725418))
sketch8.addConstraint(Sketcher.Constraint("Distance", 17, 2.791051))
sketch8.addConstraint(Sketcher.Constraint("Distance", 21, 3.160981))
sketch8.addConstraint(Sketcher.Constraint("Distance", 46, 7.60494))
sketch8.addConstraint(Sketcher.Constraint("Distance", 54, 7.605438))
sketch8.addConstraint(Sketcher.Constraint("Distance", 56, 7.24182))
sketch8.addConstraint(Sketcher.Constraint("Distance", 57, 7.249751))
sketch8.addConstraint(Sketcher.Constraint("DistanceX", 5, 2, 5, 1, 1.323618))
sketch8.addConstraint(Sketcher.Constraint("DistanceX", 8, 1, 8, 2, 1.413762))
sketch8.addConstraint(Sketcher.Constraint("DistanceX", 12, 1, 12, 2, 0.192308))
sketch8.addConstraint(Sketcher.Constraint("DistanceX", 18, 2, 18, 1, 1.059195))
sketch8.addConstraint(Sketcher.Constraint("DistanceX", 20, 1, 20, 2, 3.228666))
sketch8.addConstraint(Sketcher.Constraint("DistanceX", 30, 2, 30, 1, 0.509315))
sketch8.addConstraint(Sketcher.Constraint("DistanceX", 32, 2, 32, 1, 1.222957))
sketch8.addConstraint(Sketcher.Constraint("DistanceX", 37, 2, 37, 1, 1.727764))
sketch8.addConstraint(Sketcher.Constraint("DistanceX", 47, 2, 47, 1, 0.970553))
sketch8.addConstraint(Sketcher.Constraint("DistanceX", 50, 2, 50, 1, 0.420673))
sketch8.addConstraint(Sketcher.Constraint("DistanceX", 55, 1, 55, 2, 0.353065))
sketch8.addConstraint(Sketcher.Constraint("DistanceX", 58, 1, 58, 2, 0.341046))
sketch8.addConstraint(Sketcher.Constraint("DistanceY", 3, 2, 3, 1, 3.466046))
sketch8.addConstraint(Sketcher.Constraint("DistanceY", 10, 2, 10, 1, 2.708834))
sketch8.addConstraint(Sketcher.Constraint("DistanceY", 0, 2, -1, 1, 0.162159))
sketch8.addConstraint(Sketcher.Constraint("DistanceX", -1, 1, 5, 2, 78.448239))
sketch8.addConstraint(Sketcher.Constraint("DistanceX", -1, 1, 19, 2, 71.618311))
sketch8.addConstraint(Sketcher.Constraint("DistanceY", -1, 1, 21, 2, 1.457432))
sketch8.addConstraint(Sketcher.Constraint("DistanceX", -1, 1, 22, 2, 66.380931))
sketch8.addConstraint(Sketcher.Constraint("DistanceX", -1, 1, 31, 2, 59.430811))
sketch8.addConstraint(Sketcher.Constraint("DistanceY", -1, 1, 31, 2, 7.337841))
sketch8.addConstraint(Sketcher.Constraint("DistanceX", -1, 1, 42, 2, 55.323239))
sketch8.addConstraint(Sketcher.Constraint("DistanceX", -1, 1, 47, 2, 52.718071))
sketch8.addConstraint(Sketcher.Constraint("DistanceY", -1, 1, 49, 2, 7.337841))
sketch8.addConstraint(Sketcher.Constraint("DistanceX", -1, 1, 59, 2, 40.130931))
sketch8.addConstraint(Sketcher.Constraint("DistanceX", 4, 2, 2, 2, 4.205228))
sketch8.addConstraint(Sketcher.Constraint("DistanceX", 6, 2, 3, 2, 0.51232))
sketch8.addConstraint(Sketcher.Constraint("DistanceY", 6, 2, 3, 2, 0.66857))
sketch8.addConstraint(Sketcher.Constraint("DistanceY", 19, 2, 16, 2, 0.769231))
sketch8.addConstraint(Sketcher.Constraint("DistanceX", 49, 2, 44, 2, 7.826022))
sketch8.addConstraint(Sketcher.Constraint("DistanceY", 48, 2, 56, 2, 4.038462))
sketch8.addConstraint(Sketcher.Constraint("Distance", 51, 6.336295))
pocket3 = body.newObject("PartDesign::Pocket", "Pocket002")
pocket3.Profile = sketch8
pocket3.Length = 1.5

doc.recompute()
